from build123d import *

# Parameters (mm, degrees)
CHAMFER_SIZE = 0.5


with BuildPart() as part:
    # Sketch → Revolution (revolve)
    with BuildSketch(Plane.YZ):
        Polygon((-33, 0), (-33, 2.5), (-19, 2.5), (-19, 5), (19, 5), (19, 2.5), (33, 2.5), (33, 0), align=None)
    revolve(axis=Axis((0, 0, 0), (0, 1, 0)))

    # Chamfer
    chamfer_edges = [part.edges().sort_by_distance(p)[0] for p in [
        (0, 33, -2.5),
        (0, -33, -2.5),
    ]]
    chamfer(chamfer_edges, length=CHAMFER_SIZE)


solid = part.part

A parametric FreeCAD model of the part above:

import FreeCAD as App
import Part
import Sketcher


def edges_at(feature, points):
    """Names of the edges that pass closest to the given points."""
    edges = feature.Shape.Edges
    near = lambda p: min(range(len(edges)), key=lambda i: edges[i].distToShape(Part.Vertex(*p))[0])
    return sorted({f"Edge{near(p) + 1}" for p in points})


def add_polygon(sketch, points):
    """Adds a closed chain of lines whose ends are joined by coincident constraints."""
    first, n = sketch.GeometryCount, len(points)
    for a, b in zip(points, points[1:] + points[:1]):
        sketch.addGeometry(Part.LineSegment(App.Vector(*a, 0), App.Vector(*b, 0)), False)
    for i in range(n):
        sketch.addConstraint(Sketcher.Constraint("Coincident", first + i, 2, first + (i + 1) % n, 1))

doc = App.newDocument("Part")
params = doc.addObject("Spreadsheet::Sheet", "Params")
for row, (alias, value) in enumerate([
    ("sketch1_width", "66 mm"),
    ("sketch1_width2", "14 mm"),
    ("sketch1_height", "2.5 mm"),
    ("revolution_angle", "360 deg"),
    ("chamfer_size", "0.5 mm"),
], start=1):
    params.set(f"A{row}", alias)
    params.set(f"B{row}", "=" + value)
    params.setAlias(f"B{row}", alias)

body = doc.addObject("PartDesign::Body", "Body")

# Sketch on YZ plane
sketch1 = body.newObject("Sketcher::SketchObject", "Sketch")
sketch1.AttachmentSupport = (doc.getObject("YZ_Plane"), [""])
sketch1.MapMode = "FlatFace"
add_polygon(sketch1, [(-33, 2.5), (-33, 0), (33, 0), (33, 2.5), (19, 2.5), (19, 5), (-19, 5), (-19, 2.5)])  # lines 0-7
sketch1.addConstraint([
    Sketcher.Constraint("Vertical", 0),
    Sketcher.Constraint("Horizontal", 1),
    Sketcher.Constraint("Vertical", 2),
    Sketcher.Constraint("Horizontal", 3),
    Sketcher.Constraint("Vertical", 4),
    Sketcher.Constraint("Horizontal", 5),
    Sketcher.Constraint("Vertical", 6),
    Sketcher.Constraint("Horizontal", 7),
    Sketcher.Constraint("Symmetric", 0, 2, 1, 2, -1, 1),
    Sketcher.Constraint("Symmetric", 3, 2, 6, 2, -2),
    Sketcher.Constraint("Equal", 2, 4),
    Sketcher.Constraint("DistanceX", 1, 1, 1, 2, 66.0),
    Sketcher.Constraint("DistanceX", 3, 2, 3, 1, 14.0),
    Sketcher.Constraint("DistanceY", 0, 2, 0, 1, 2.5),
])
sketch1.setExpression("Constraints[19]", "Params.sketch1_width")
sketch1.setExpression("Constraints[20]", "Params.sketch1_width2")
sketch1.setExpression("Constraints[21]", "Params.sketch1_height")
revolution = body.newObject("PartDesign::Revolution", "Revolution")
revolution.Profile = sketch1
revolution.ReferenceAxis = (sketch1, ["H_Axis"])
revolution.setExpression("Angle", "Params.revolution_angle")
doc.recompute()

chamfer = body.newObject("PartDesign::Chamfer", "Chamfer")
chamfer.Base = (revolution, edges_at(revolution, [(0, 33, -2.5), (0, -33, -2.5)]))
chamfer.setExpression("Size", "Params.chamfer_size")

doc.recompute()
